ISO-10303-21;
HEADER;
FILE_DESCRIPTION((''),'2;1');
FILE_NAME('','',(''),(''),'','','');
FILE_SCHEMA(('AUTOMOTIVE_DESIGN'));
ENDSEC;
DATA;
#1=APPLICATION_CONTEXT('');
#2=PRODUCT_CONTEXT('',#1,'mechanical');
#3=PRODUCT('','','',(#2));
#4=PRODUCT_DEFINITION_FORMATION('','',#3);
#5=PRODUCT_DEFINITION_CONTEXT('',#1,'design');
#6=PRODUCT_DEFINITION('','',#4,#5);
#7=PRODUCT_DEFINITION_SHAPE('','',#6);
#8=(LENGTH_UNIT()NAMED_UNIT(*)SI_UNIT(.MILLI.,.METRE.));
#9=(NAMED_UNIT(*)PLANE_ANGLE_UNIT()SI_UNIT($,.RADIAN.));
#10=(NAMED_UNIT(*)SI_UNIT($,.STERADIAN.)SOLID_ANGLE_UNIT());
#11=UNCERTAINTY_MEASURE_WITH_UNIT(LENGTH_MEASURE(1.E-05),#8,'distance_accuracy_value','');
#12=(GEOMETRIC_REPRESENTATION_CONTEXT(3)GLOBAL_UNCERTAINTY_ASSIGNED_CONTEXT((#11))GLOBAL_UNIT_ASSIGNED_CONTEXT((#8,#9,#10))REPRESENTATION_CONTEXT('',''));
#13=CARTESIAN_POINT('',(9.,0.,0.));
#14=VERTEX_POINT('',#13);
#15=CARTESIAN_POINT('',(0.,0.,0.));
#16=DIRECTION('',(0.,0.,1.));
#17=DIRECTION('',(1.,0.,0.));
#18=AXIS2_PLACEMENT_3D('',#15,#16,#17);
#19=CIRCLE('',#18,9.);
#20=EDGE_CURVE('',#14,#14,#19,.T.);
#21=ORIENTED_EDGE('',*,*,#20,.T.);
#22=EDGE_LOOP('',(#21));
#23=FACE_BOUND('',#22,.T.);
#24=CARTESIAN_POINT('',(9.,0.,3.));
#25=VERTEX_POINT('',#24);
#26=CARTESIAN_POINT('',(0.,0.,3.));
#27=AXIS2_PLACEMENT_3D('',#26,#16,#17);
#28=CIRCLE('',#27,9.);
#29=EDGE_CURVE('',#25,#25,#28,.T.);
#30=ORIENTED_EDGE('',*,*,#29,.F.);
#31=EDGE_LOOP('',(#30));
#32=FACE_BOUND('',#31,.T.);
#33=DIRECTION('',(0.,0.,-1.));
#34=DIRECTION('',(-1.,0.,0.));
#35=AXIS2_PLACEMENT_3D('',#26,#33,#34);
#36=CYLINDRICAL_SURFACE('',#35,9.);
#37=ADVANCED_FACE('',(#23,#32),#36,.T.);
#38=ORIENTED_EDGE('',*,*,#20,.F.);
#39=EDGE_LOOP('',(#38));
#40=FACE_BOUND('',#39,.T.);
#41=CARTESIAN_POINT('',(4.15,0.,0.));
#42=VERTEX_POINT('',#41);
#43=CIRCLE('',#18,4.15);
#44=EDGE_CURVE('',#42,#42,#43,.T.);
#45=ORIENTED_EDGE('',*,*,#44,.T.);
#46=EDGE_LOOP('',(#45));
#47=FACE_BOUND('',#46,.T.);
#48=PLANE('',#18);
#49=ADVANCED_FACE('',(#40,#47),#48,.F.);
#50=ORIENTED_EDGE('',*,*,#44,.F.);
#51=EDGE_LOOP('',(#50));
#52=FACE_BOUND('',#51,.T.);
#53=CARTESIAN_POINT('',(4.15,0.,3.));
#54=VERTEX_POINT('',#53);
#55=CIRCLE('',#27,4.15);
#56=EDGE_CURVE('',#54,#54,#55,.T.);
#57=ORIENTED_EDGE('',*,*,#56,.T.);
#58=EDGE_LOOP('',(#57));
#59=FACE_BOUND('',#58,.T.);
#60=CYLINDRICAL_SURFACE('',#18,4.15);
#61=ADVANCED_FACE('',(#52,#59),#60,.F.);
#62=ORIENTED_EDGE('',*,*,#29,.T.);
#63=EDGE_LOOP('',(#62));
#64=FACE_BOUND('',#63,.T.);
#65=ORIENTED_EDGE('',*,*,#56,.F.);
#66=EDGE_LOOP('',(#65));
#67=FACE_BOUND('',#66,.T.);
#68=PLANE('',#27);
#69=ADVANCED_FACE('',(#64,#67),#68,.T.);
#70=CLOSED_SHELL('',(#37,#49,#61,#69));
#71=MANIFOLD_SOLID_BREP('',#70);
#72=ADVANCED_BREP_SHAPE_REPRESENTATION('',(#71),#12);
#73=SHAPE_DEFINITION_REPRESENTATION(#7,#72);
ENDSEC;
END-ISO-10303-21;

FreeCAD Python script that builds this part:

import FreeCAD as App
import Part
import Sketcher

V = App.Vector
Q = App.Units.Quantity

doc = App.newDocument("Part")
params = doc.addObject("Spreadsheet::Sheet", "Params")
for row, (alias, value) in enumerate([
    ("sketch1_diameter", "18 mm"),
    ("pad1_length", "3 mm"),
    ("sketch2_diameter", "8.3 mm"),
], start=1):
    params.set(f"A{row}", alias)
    params.set(f"B{row}", "=" + value)
    params.setAlias(f"B{row}", alias)

body = doc.addObject("PartDesign::Body", "Body")

# Sketch on XY plane
sketch1 = doc.addObject("Sketcher::SketchObject", "Sketch")
body.addObject(sketch1)
sketch1.AttachmentSupport = (doc.XY_Plane, [""])
sketch1.MapMode = "FlatFace"
sketch1.addGeometry(Part.Circle(V(0, 0, 0), V(0, 0, 1), 9), False)
sketch1.addConstraint([
    Sketcher.Constraint("Coincident", 0, 3, -1, 1),
    Sketcher.Constraint("Diameter", 0, Q("18 mm")),
])
sketch1.setExpression("Constraints[1]", "Params.sketch1_diameter")
pad1 = doc.addObject("PartDesign::Pad", "Pad")
body.addObject(pad1)
pad1.Profile = sketch1
pad1.setExpression("Length", "Params.pad1_length")

# Sketch on XY plane
sketch2 = doc.addObject("Sketcher::SketchObject", "Sketch001")
body.addObject(sketch2)
sketch2.AttachmentSupport = (doc.XY_Plane, [""])
sketch2.MapMode = "FlatFace"
sketch2.AttachmentOffset = App.Placement(V(0, 0, 3), App.Rotation())
sketch2.addGeometry(Part.Circle(V(0, 0, 0), V(0, 0, 1), 4.2), False)
sketch2.addConstraint([
    Sketcher.Constraint("Coincident", 0, 3, -1, 1),
    Sketcher.Constraint("Diameter", 0, Q("8.3 mm")),
])
sketch2.setExpression("Constraints[1]", "Params.sketch2_diameter")
pocket1 = doc.addObject("PartDesign::Pocket", "Pocket")
body.addObject(pocket1)
pocket1.Profile = sketch2
pocket1.Type = "ThroughAll"

doc.recompute()
